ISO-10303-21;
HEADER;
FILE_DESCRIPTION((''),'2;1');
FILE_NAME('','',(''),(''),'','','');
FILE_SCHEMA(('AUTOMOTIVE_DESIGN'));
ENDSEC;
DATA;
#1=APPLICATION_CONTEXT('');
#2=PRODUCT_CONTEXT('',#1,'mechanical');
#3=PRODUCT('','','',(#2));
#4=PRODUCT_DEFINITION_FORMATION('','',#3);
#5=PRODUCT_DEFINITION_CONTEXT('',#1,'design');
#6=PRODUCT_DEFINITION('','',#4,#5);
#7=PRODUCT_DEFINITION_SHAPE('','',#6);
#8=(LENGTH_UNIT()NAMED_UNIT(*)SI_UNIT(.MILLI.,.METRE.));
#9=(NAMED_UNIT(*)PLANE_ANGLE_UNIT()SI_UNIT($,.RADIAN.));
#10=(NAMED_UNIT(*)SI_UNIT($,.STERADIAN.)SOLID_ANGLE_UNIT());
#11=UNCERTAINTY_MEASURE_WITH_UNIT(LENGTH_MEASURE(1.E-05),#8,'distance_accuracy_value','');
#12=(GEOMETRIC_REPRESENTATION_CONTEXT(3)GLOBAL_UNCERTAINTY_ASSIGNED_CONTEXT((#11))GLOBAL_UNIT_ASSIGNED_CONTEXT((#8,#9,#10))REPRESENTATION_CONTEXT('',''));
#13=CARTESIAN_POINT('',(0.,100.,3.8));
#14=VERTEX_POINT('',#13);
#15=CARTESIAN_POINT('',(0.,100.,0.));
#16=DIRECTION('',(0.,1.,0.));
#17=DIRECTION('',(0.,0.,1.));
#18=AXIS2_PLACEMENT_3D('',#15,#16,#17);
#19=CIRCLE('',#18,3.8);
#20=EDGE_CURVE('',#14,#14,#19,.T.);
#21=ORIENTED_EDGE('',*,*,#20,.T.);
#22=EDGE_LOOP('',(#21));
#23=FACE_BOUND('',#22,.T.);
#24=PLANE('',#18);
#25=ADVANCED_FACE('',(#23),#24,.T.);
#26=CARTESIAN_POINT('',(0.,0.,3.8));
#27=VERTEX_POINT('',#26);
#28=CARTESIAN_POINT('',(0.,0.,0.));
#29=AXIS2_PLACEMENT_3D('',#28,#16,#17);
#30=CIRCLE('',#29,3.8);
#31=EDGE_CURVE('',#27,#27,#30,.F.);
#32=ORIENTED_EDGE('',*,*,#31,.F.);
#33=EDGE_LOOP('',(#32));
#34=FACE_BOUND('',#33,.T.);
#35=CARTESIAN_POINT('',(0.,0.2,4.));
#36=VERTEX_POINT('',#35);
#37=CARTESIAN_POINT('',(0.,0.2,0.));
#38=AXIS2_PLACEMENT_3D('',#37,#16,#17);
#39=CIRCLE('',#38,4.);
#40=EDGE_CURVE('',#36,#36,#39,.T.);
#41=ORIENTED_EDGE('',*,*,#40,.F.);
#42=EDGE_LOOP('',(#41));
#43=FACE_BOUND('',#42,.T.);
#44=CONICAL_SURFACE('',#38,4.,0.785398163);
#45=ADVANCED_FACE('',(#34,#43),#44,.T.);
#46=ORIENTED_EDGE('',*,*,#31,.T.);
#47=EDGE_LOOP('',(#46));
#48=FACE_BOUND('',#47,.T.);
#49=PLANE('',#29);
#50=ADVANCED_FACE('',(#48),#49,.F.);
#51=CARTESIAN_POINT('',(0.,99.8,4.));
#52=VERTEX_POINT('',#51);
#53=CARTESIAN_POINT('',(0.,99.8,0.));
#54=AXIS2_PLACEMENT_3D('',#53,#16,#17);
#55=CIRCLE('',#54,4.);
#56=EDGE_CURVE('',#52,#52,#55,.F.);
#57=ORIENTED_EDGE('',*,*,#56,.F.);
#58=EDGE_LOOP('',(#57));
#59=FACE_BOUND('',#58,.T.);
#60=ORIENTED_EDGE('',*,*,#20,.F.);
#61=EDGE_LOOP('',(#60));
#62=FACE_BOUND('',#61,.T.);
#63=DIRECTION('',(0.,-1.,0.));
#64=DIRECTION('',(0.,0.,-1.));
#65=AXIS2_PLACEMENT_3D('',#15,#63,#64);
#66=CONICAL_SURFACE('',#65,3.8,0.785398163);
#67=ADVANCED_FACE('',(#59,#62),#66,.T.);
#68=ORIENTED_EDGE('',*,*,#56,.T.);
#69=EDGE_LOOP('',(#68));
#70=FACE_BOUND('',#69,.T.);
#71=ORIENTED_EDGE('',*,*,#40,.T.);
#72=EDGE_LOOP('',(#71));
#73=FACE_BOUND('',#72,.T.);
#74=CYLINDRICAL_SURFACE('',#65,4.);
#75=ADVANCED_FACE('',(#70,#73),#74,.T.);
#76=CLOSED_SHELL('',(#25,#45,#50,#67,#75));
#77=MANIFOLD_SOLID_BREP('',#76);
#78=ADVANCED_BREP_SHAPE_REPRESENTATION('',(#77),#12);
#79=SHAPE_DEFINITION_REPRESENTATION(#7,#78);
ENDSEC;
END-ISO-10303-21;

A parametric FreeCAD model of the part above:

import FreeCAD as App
import Part
import Sketcher
from FreeCAD import Vector


def edges_at(feature, points):
    """Names of the edges that pass closest to the given points."""
    edges = feature.Shape.Edges
    near = lambda p: min(range(len(edges)), key=lambda i: edges[i].distToShape(Part.Vertex(*p))[0])
    return sorted({f"Edge{near(p) + 1}" for p in points})

doc = App.newDocument("Part")
params = doc.addObject("Spreadsheet::Sheet", "Params")
for row, (alias, value) in enumerate([
    ("sketch1_diameter", "8 mm"),
    ("pad1_length", "100 mm"),
    ("chamfer_size", "0.2 mm"),
], start=1):
    params.set(f"A{row}", alias)
    params.set(f"B{row}", "=" + value)
    params.setAlias(f"B{row}", alias)

body = doc.addObject("PartDesign::Body", "Body")

sketch1 = doc.addObject("Sketcher::SketchObject", "Sketch")
body.addObject(sketch1)
sketch1.AttachmentSupport = (doc.XZ_Plane, [""])
sketch1.MapMode = "FlatFace"
sketch1.addGeometry(Part.Circle(Vector(0, 0, 0), Vector(0, 0, 1), 4), False)
sketch1.addConstraint([
    Sketcher.Constraint("Coincident", 0, 3, -1, 1),
    Sketcher.Constraint("Diameter", 0, 8.0),
])
sketch1.setExpression("Constraints[1]", "Params.sketch1_diameter")
pad1 = doc.addObject("PartDesign::Pad", "Pad")
body.addObject(pad1)
pad1.Profile = sketch1
pad1.setExpression("Length", "Params.pad1_length")
pad1.Reversed = True
doc.recompute()

chamfer = doc.addObject("PartDesign::Chamfer", "Chamfer")
body.addObject(chamfer)
chamfer.Base = (pad1, edges_at(pad1, [(-4, 0, 0), (-4, 100, 0)]))
chamfer.setExpression("Size", "Params.chamfer_size")

doc.recompute()
